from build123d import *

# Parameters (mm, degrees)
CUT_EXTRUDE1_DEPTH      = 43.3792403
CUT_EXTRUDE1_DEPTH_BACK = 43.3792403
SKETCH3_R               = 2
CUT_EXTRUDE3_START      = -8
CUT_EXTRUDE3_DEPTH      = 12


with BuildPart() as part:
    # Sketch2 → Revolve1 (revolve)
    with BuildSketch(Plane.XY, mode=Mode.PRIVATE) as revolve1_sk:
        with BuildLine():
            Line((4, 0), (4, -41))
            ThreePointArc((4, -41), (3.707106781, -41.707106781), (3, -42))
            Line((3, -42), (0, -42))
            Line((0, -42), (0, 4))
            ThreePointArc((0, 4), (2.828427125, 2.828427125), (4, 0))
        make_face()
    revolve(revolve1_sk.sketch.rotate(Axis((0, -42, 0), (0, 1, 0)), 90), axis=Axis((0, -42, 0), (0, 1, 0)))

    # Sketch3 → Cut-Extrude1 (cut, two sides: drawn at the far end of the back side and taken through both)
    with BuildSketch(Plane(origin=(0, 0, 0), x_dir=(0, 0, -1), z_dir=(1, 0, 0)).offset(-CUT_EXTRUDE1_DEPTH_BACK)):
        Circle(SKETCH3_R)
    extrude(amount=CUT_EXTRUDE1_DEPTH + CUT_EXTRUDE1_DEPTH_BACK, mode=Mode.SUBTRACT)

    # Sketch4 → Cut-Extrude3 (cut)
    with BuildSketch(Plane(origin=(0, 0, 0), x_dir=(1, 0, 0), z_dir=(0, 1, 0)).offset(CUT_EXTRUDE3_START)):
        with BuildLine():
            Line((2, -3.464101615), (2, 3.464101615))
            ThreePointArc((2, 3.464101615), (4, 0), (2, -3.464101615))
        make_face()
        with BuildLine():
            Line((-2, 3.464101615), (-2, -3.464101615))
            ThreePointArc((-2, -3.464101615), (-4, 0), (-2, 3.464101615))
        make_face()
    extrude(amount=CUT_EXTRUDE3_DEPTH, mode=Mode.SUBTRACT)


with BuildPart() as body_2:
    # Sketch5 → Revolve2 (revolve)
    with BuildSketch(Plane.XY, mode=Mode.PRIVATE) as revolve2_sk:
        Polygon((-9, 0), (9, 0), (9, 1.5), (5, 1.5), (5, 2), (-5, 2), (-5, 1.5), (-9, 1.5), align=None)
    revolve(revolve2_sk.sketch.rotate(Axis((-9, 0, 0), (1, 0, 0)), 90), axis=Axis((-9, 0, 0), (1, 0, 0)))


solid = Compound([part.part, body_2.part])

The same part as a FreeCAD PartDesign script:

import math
import FreeCAD as App
import Part
import Sketcher

V = App.Vector
Q = App.Units.Quantity

doc = App.newDocument("Part")
params = doc.addObject("Spreadsheet::Sheet", "Params")
for row, (alias, value) in enumerate([
    ("sketch1_radius", "4 mm"),
    ("sketch1_radius2", "1 mm"),
    ("sketch1_height", "41 mm"),
    ("revolution_angle", "360 deg"),
    ("sketch2_diameter", "4 mm"),
    ("sketch3_radius", "4 mm"),
    ("pocket2_length", "12 mm"),
    ("sketch4_width", "18 mm"),
    ("sketch4_width2", "4 mm"),
    ("sketch4_height", "1.5 mm"),
    ("sketch4_height2", "0.5 mm"),
    ("revolution2_angle", "360 deg"),
], start=1):
    params.set(f"A{row}", alias)
    params.set(f"B{row}", "=" + value)
    params.setAlias(f"B{row}", alias)

body = doc.addObject("PartDesign::Body", "Body")

sketch1 = body.newObject("Sketcher::SketchObject", "Sketch")
sketch1.AttachmentSupport = (doc.getObject("XY_Plane"), [""])
sketch1.MapMode = "FlatFace"
sketch1.addGeometry(Part.LineSegment(V(4, -41, 0), V(4, 0, 0)), False)
sketch1.addGeometry(Part.ArcOfCircle(Part.Circle(V(0, 0, 0), V(0, 0, 1), 4), math.radians(0), math.radians(90)), False)
sketch1.addGeometry(Part.LineSegment(V(0, 4, 0), V(0, -42, 0)), False)
sketch1.addGeometry(Part.LineSegment(V(0, -42, 0), V(3, -42, 0)), False)
sketch1.addGeometry(Part.ArcOfCircle(Part.Circle(V(3, -41, 0), V(0, 0, 1), 1), math.radians(-90), math.radians(0)), False)
sketch1.addConstraint(Sketcher.Constraint("Tangent", 0, 2, 1, 1))
sketch1.addConstraint(Sketcher.Constraint("Coincident", 1, 2, 2, 1))
sketch1.addConstraint(Sketcher.Constraint("Coincident", 2, 2, 3, 1))
sketch1.addConstraint(Sketcher.Constraint("Tangent", 3, 2, 4, 1))
sketch1.addConstraint(Sketcher.Constraint("Tangent", 4, 2, 0, 1))
sketch1.addConstraint(Sketcher.Constraint("Vertical", 0))
sketch1.addConstraint(Sketcher.Constraint("Vertical", 2))
sketch1.addConstraint(Sketcher.Constraint("Horizontal", 3))
sketch1.addConstraint(Sketcher.Constraint("Coincident", 1, 3, -1, 1))
sketch1.addConstraint(Sketcher.Constraint("PointOnObject", 1, 2, -2))
sketch1.addConstraint(Sketcher.Constraint("Radius", 1, Q("4 mm")))
sketch1.addConstraint(Sketcher.Constraint("Radius", 4, Q("1 mm")))
sketch1.addConstraint(Sketcher.Constraint("DistanceY", 0, 1, 0, 2, Q("41 mm")))
sketch1.setExpression("Constraints[10]", "Params.sketch1_radius")
sketch1.setExpression("Constraints[11]", "Params.sketch1_radius2")
sketch1.setExpression("Constraints[12]", "Params.sketch1_height")
revolution = body.newObject("PartDesign::Revolution", "Revolution")
revolution.Profile = sketch1
revolution.ReferenceAxis = (sketch1, ["V_Axis"])
revolution.setExpression("Angle", "Params.revolution_angle")

sketch2 = body.newObject("Sketcher::SketchObject", "Sketch001")
sketch2.AttachmentSupport = (doc.getObject("YZ_Plane"), [""])
sketch2.MapMode = "FlatFace"
sketch2.addGeometry(Part.Circle(V(0, 0, 0), V(0, 0, 1), 2), False)
sketch2.addConstraint(Sketcher.Constraint("Coincident", 0, 3, -1, 1))
sketch2.addConstraint(Sketcher.Constraint("Diameter", 0, Q("4 mm")))
sketch2.setExpression("Constraints[1]", "Params.sketch2_diameter")
pocket1 = body.newObject("PartDesign::Pocket", "Pocket")
pocket1.Profile = sketch2
pocket1.Type = "ThroughAll"
pocket1.Midplane = True

sketch3 = body.newObject("Sketcher::SketchObject", "Sketch002")
sketch3.AttachmentSupport = (doc.getObject("XZ_Plane"), [""])
sketch3.MapMode = "FlatFace"
sketch3.AttachmentOffset = App.Placement(V(0, 0, 8), App.Rotation())
sketch3.addGeometry(Part.LineSegment(V(2, -3.5, 0), V(2, 3.5, 0)), False)
sketch3.addGeometry(Part.ArcOfCircle(Part.Circle(V(0, 0, 0), V(0, 0, 1), 4), math.radians(-60), math.radians(60)), False)
sketch3.addGeometry(Part.LineSegment(V(-2, 3.5, 0), V(-2, -3.5, 0)), False)
sketch3.addGeometry(Part.ArcOfCircle(Part.Circle(V(0, 0, 0), V(0, 0, 1), 4), math.radians(120), math.radians(240)), False)
sketch3.addConstraint(Sketcher.Constraint("Coincident", 0, 1, 1, 1))
sketch3.addConstraint(Sketcher.Constraint("Coincident", 1, 2, 0, 2))
sketch3.addConstraint(Sketcher.Constraint("Coincident", 2, 1, 3, 1))
sketch3.addConstraint(Sketcher.Constraint("Coincident", 3, 2, 2, 2))
sketch3.addConstraint(Sketcher.Constraint("Vertical", 0))
sketch3.addConstraint(Sketcher.Constraint("Vertical", 2))
sketch3.addConstraint(Sketcher.Constraint("Coincident", 1, 3, -1, 1))
sketch3.addConstraint(Sketcher.Constraint("Coincident", 3, 3, -1, 1))
sketch3.addConstraint(Sketcher.Constraint("Equal", 1, 3))
sketch3.addConstraint(Sketcher.Constraint("Horizontal", 1, 2, 2, 1))
sketch3.addConstraint(Sketcher.Constraint("Radius", 1, Q("4 mm")))
sketch3.addConstraint(Sketcher.Constraint("DistanceX", -1, 1, 0, 1, Q("2 mm")))
sketch3.setExpression("Constraints[10]", "Params.sketch3_radius")
pocket2 = body.newObject("PartDesign::Pocket", "Pocket001")
pocket2.Profile = sketch3
pocket2.setExpression("Length", "Params.pocket2_length")
body2 = doc.addObject("PartDesign::Body", "Body001")

sketch4 = body2.newObject("Sketcher::SketchObject", "Sketch003")
sketch4.AttachmentSupport = (doc.getObject("XY_Plane001"), [""])
sketch4.MapMode = "FlatFace"
sketch4.addGeometry(Part.LineSegment(V(-9, 0, 0), V(9, 0, 0)), False)
sketch4.addGeometry(Part.LineSegment(V(9, 0, 0), V(9, 1.5, 0)), False)
sketch4.addGeometry(Part.LineSegment(V(9, 1.5, 0), V(5, 1.5, 0)), False)
sketch4.addGeometry(Part.LineSegment(V(5, 1.5, 0), V(5, 2, 0)), False)
sketch4.addGeometry(Part.LineSegment(V(5, 2, 0), V(-5, 2, 0)), False)
sketch4.addGeometry(Part.LineSegment(V(-5, 2, 0), V(-5, 1.5, 0)), False)
sketch4.addGeometry(Part.LineSegment(V(-5, 1.5, 0), V(-9, 1.5, 0)), False)
sketch4.addGeometry(Part.LineSegment(V(-9, 1.5, 0), V(-9, 0, 0)), False)
sketch4.addConstraint(Sketcher.Constraint("Coincident", 0, 2, 1, 1))
sketch4.addConstraint(Sketcher.Constraint("Coincident", 1, 2, 2, 1))
sketch4.addConstraint(Sketcher.Constraint("Coincident", 2, 2, 3, 1))
sketch4.addConstraint(Sketcher.Constraint("Coincident", 3, 2, 4, 1))
sketch4.addConstraint(Sketcher.Constraint("Coincident", 4, 2, 5, 1))
sketch4.addConstraint(Sketcher.Constraint("Coincident", 5, 2, 6, 1))
sketch4.addConstraint(Sketcher.Constraint("Coincident", 6, 2, 7, 1))
sketch4.addConstraint(Sketcher.Constraint("Coincident", 7, 2, 0, 1))
sketch4.addConstraint(Sketcher.Constraint("Horizontal", 0))
sketch4.addConstraint(Sketcher.Constraint("Vertical", 1))
sketch4.addConstraint(Sketcher.Constraint("Horizontal", 2))
sketch4.addConstraint(Sketcher.Constraint("Vertical", 3))
sketch4.addConstraint(Sketcher.Constraint("Horizontal", 4))
sketch4.addConstraint(Sketcher.Constraint("Vertical", 5))
sketch4.addConstraint(Sketcher.Constraint("Horizontal", 6))
sketch4.addConstraint(Sketcher.Constraint("Vertical", 7))
sketch4.addConstraint(Sketcher.Constraint("Symmetric", 0, 2, 7, 2, -1, 1))
sketch4.addConstraint(Sketcher.Constraint("Symmetric", 2, 2, 5, 2, -2))
sketch4.addConstraint(Sketcher.Constraint("DistanceX", 0, 1, 0, 2, Q("18 mm")))
sketch4.addConstraint(Sketcher.Constraint("DistanceX", 2, 2, 2, 1, Q("4 mm")))
sketch4.addConstraint(Sketcher.Constraint("DistanceY", 1, 1, 1, 2, Q("1.5 mm")))
sketch4.addConstraint(Sketcher.Constraint("DistanceY", 3, 1, 3, 2, Q("0.5 mm")))
sketch4.setExpression("Constraints[18]", "Params.sketch4_width")
sketch4.setExpression("Constraints[19]", "Params.sketch4_width2")
sketch4.setExpression("Constraints[20]", "Params.sketch4_height")
sketch4.setExpression("Constraints[21]", "Params.sketch4_height2")
revolution2 = body2.newObject("PartDesign::Revolution", "Revolution001")
revolution2.Profile = sketch4
revolution2.ReferenceAxis = (sketch4, ["H_Axis"])
revolution2.setExpression("Angle", "Params.revolution2_angle")

doc.recompute()
